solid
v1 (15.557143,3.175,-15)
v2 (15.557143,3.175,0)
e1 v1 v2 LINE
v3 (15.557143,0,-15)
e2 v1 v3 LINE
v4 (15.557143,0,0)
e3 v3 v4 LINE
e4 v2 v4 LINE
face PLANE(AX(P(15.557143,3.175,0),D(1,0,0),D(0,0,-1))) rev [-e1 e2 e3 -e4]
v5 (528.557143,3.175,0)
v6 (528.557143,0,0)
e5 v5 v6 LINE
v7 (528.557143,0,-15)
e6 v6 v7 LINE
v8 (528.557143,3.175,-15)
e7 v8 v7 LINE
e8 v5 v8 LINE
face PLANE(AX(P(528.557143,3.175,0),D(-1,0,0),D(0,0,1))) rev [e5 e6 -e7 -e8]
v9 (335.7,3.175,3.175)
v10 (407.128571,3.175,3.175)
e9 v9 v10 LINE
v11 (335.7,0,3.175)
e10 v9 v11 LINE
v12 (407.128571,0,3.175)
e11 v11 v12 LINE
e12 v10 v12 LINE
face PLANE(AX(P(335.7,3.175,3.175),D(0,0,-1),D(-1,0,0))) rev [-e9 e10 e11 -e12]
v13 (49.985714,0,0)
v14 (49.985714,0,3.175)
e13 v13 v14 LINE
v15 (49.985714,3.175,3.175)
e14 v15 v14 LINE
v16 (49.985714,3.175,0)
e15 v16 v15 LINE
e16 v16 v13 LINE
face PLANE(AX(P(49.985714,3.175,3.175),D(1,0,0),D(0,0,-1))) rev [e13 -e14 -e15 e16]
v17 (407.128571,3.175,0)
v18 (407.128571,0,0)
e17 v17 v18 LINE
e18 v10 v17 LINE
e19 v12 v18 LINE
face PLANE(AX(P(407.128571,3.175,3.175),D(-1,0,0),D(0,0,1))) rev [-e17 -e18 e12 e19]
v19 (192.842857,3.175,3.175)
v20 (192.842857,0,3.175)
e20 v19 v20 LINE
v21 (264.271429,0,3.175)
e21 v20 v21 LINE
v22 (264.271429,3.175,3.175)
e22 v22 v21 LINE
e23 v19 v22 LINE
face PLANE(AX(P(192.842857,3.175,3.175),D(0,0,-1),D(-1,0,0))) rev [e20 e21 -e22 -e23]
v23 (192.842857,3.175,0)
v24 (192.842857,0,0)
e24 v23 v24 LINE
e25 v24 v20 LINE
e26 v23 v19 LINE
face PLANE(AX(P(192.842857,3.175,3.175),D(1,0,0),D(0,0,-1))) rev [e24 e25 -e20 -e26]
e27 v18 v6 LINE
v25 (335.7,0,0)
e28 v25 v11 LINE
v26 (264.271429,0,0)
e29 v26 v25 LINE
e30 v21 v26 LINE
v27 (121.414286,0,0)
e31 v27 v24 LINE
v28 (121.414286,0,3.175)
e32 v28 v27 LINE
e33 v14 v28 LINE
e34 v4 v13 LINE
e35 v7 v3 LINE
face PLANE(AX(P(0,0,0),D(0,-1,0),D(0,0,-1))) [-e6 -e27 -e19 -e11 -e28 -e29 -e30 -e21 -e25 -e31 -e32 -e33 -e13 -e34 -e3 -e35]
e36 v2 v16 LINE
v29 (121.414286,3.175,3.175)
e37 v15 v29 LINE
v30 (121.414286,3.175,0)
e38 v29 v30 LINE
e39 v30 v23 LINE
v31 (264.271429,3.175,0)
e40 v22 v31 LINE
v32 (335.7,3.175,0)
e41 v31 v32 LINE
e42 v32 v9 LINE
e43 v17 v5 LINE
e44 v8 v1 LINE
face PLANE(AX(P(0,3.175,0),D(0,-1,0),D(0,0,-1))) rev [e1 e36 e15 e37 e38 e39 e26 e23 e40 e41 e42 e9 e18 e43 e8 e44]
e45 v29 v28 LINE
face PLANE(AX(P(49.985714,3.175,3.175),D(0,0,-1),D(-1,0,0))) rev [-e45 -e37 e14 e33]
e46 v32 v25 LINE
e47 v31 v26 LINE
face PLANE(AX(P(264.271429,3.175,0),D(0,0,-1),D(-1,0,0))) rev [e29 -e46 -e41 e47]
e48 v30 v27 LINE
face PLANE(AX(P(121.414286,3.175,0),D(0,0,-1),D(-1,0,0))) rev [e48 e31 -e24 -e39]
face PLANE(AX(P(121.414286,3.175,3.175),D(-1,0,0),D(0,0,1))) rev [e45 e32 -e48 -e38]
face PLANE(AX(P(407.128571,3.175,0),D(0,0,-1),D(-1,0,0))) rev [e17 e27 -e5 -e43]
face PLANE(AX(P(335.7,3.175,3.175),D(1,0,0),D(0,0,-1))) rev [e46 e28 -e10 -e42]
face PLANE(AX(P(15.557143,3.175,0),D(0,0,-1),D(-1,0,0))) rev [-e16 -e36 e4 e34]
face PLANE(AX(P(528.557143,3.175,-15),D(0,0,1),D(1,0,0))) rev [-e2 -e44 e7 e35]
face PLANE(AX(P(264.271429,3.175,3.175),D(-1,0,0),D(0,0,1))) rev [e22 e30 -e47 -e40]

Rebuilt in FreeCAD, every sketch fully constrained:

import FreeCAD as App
import Part
import Sketcher
Q = App.Units.Quantity


def add_polygon(sketch, points):
    """Adds a closed chain of lines whose ends are joined by coincident constraints."""
    first, n = sketch.GeometryCount, len(points)
    for a, b in zip(points, points[1:] + points[:1]):
        sketch.addGeometry(Part.LineSegment(App.Vector(*a, 0), App.Vector(*b, 0)), False)
    for i in range(n):
        sketch.addConstraint(Sketcher.Constraint("Coincident", first + i, 2, first + (i + 1) % n, 1))

doc = App.newDocument("Part")
params = doc.addObject("Spreadsheet::Sheet", "Params")
for row, (alias, value) in enumerate([
    ("sketch1_width", "513 mm"),
    ("sketch1_height", "15 mm"),
    ("pad1_length", "3.175 mm"),
], start=1):
    params.set(f"A{row}", alias)
    params.set(f"B{row}", "=" + value)
    params.setAlias(f"B{row}", alias)

body = doc.addObject("PartDesign::Body", "Body")

# Sketch on XZ plane
sketch1 = doc.addObject("Sketcher::SketchObject", "Sketch")
body.addObject(sketch1)
sketch1.AttachmentSupport = (doc.XZ_Plane, [""])
sketch1.MapMode = "FlatFace"
add_polygon(sketch1, [(15.6, -15), (15.6, 0), (50, 0), (50, 3.2), (121.4, 3.2), (121.4, 0), (192.8, 0), (192.8, 3.2), (264.3, 3.2), (264.3, 0), (335.7, 0), (335.7, 3.2), (407.1, 3.2), (407.1, 0), (528.6, 0), (528.6, -15)])  # lines 0-15
sketch1.addConstraint([
    Sketcher.Constraint("Vertical", 0),
    Sketcher.Constraint("Horizontal", 1),
    Sketcher.Constraint("Vertical", 2),
    Sketcher.Constraint("Horizontal", 3),
    Sketcher.Constraint("Vertical", 4),
    Sketcher.Constraint("Horizontal", 5),
    Sketcher.Constraint("Vertical", 6),
    Sketcher.Constraint("Horizontal", 7),
    Sketcher.Constraint("Vertical", 8),
    Sketcher.Constraint("Horizontal", 9),
    Sketcher.Constraint("Vertical", 10),
    Sketcher.Constraint("Horizontal", 11),
    Sketcher.Constraint("Vertical", 12),
    Sketcher.Constraint("Horizontal", 13),
    Sketcher.Constraint("Vertical", 14),
    Sketcher.Constraint("Horizontal", 15),
    Sketcher.Constraint("PointOnObject", 0, 2, -1),
    Sketcher.Constraint("PointOnObject", 4, 2, -1),
    Sketcher.Constraint("PointOnObject", 8, 2, -1),
    Sketcher.Constraint("PointOnObject", 12, 2, -1),
    Sketcher.Constraint("Horizontal", 3, 2, 6, 2),
    Sketcher.Constraint("Horizontal", 7, 2, 10, 2),
    Sketcher.Constraint("Equal", 3, 5),
    Sketcher.Constraint("Equal", 5, 7),
    Sketcher.Constraint("Equal", 7, 9),
    Sketcher.Constraint("Equal", 9, 11),
    Sketcher.Constraint("DistanceX", 15, 2, 15, 1, Q("513 mm")),
    Sketcher.Constraint("DistanceY", 0, 1, 0, 2, Q("15 mm")),
    Sketcher.Constraint("DistanceX", -1, 1, 9, 2, Q("335.7 mm")),
    Sketcher.Constraint("DistanceY", 2, 1, 2, 2, Q("3.175 mm")),
    Sketcher.Constraint("DistanceX", 1, 1, 1, 2, Q("34.428571 mm")),
    Sketcher.Constraint("DistanceX", 3, 1, 3, 2, Q("71.428571 mm")),
])
sketch1.setExpression("Constraints[42]", "Params.sketch1_width")
sketch1.setExpression("Constraints[43]", "Params.sketch1_height")
pad1 = doc.addObject("PartDesign::Pad", "Pad")
body.addObject(pad1)
pad1.Profile = sketch1
pad1.setExpression("Length", "Params.pad1_length")
pad1.Reversed = True

doc.recompute()
